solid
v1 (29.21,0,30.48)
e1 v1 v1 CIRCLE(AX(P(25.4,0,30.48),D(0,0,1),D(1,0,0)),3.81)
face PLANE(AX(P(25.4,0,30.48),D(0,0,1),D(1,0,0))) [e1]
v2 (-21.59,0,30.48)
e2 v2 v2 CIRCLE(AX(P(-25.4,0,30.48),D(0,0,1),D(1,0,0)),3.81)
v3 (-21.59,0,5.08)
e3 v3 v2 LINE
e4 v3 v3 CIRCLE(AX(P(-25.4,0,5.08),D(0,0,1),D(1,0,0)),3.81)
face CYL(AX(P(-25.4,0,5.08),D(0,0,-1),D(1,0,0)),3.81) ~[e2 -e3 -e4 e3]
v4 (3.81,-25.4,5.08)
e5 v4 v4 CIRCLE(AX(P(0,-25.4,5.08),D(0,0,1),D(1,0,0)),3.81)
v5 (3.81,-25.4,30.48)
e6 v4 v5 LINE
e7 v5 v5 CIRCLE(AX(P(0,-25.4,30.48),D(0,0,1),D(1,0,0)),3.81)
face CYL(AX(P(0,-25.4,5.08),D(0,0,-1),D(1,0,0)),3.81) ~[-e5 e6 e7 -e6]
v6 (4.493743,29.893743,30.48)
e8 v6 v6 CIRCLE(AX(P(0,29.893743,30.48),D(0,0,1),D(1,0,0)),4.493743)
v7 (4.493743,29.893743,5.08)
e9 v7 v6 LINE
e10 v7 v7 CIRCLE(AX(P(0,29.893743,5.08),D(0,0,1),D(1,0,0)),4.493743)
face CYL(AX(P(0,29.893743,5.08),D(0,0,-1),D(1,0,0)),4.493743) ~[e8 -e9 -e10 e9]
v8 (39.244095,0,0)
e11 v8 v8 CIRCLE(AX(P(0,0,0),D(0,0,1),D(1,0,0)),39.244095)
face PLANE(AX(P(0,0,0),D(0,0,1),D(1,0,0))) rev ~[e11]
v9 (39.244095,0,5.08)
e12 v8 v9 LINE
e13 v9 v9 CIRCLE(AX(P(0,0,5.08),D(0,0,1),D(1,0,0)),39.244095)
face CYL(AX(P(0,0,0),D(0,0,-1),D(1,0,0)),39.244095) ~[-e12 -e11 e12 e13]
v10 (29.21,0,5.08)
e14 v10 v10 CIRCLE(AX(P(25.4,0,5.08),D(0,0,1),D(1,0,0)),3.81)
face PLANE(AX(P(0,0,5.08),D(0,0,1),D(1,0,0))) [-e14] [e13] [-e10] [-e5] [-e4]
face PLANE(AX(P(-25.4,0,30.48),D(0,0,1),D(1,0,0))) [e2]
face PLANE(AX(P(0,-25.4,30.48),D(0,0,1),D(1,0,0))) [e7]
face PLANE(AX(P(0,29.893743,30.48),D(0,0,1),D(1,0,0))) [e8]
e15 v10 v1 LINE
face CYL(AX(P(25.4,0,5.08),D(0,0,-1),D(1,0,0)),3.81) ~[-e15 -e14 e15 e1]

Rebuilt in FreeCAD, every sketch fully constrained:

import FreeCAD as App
import Part
import Sketcher
Q = App.Units.Quantity

doc = App.newDocument("Part")
body = doc.addObject("PartDesign::Body", "Body")

# Sketch on XY plane
sketch1 = body.newObject("Sketcher::SketchObject", "Sketch")
sketch1.AttachmentSupport = (doc.getObject("XY_Plane"), [""])
sketch1.MapMode = "FlatFace"
sketch1.addGeometry(Part.Circle(App.Vector(0, 0, 0), App.Vector(0, 0, 1), 39), False)
sketch1.addConstraint(Sketcher.Constraint("Coincident", 0, 3, -1, 1))
sketch1.addConstraint(Sketcher.Constraint("Diameter", 0, Q("78.48819 mm")))
pad1 = body.newObject("PartDesign::Pad", "Pad")
pad1.Profile = sketch1
pad1.Length = Q("0.2 in")

# Sketch on XY plane
sketch2 = body.newObject("Sketcher::SketchObject", "Sketch001")
sketch2.AttachmentSupport = (doc.getObject("XY_Plane"), [""])
sketch2.MapMode = "FlatFace"
sketch2.AttachmentOffset = App.Placement(App.Vector(0, 0, 0.2 * 25.4), App.Rotation())
sketch2.addGeometry(Part.Circle(App.Vector(0, 29.9, 0), App.Vector(0, 0, 1), 4.5), False)
sketch2.addGeometry(Part.Circle(App.Vector(0, -25.4, 0), App.Vector(0, 0, 1), 3.8), False)
sketch2.addGeometry(Part.Circle(App.Vector(25.4, 0, 0), App.Vector(0, 0, 1), 3.8), False)
sketch2.addGeometry(Part.Circle(App.Vector(-25.4, 0, 0), App.Vector(0, 0, 1), 3.8), False)
sketch2.addConstraint(Sketcher.Constraint("Equal", 1, 2))
sketch2.addConstraint(Sketcher.Constraint("Equal", 2, 3))
sketch2.addConstraint(Sketcher.Constraint("Symmetric", 2, 3, 3, 3, -1, 1))
sketch2.addConstraint(Sketcher.Constraint("PointOnObject", 0, 3, -2))
sketch2.addConstraint(Sketcher.Constraint("PointOnObject", 1, 3, -2))
sketch2.addConstraint(Sketcher.Constraint("PointOnObject", 2, 3, -1))
sketch2.addConstraint(Sketcher.Constraint("Diameter", 1, Q("0.3 in")))
sketch2.addConstraint(Sketcher.Constraint("DistanceY", 1, 3, -1, 1, Q("1 in")))
sketch2.addConstraint(Sketcher.Constraint("DistanceX", -1, 1, 2, 3, Q("1 in")))
sketch2.addConstraint(Sketcher.Constraint("Diameter", 0, Q("8.987486 mm")))
sketch2.addConstraint(Sketcher.Constraint("DistanceY", -1, 1, 0, 3, Q("29.893743 mm")))
pad2 = body.newObject("PartDesign::Pad", "Pad001")
pad2.Profile = sketch2
pad2.Length = Q("1 in")

doc.recompute()
